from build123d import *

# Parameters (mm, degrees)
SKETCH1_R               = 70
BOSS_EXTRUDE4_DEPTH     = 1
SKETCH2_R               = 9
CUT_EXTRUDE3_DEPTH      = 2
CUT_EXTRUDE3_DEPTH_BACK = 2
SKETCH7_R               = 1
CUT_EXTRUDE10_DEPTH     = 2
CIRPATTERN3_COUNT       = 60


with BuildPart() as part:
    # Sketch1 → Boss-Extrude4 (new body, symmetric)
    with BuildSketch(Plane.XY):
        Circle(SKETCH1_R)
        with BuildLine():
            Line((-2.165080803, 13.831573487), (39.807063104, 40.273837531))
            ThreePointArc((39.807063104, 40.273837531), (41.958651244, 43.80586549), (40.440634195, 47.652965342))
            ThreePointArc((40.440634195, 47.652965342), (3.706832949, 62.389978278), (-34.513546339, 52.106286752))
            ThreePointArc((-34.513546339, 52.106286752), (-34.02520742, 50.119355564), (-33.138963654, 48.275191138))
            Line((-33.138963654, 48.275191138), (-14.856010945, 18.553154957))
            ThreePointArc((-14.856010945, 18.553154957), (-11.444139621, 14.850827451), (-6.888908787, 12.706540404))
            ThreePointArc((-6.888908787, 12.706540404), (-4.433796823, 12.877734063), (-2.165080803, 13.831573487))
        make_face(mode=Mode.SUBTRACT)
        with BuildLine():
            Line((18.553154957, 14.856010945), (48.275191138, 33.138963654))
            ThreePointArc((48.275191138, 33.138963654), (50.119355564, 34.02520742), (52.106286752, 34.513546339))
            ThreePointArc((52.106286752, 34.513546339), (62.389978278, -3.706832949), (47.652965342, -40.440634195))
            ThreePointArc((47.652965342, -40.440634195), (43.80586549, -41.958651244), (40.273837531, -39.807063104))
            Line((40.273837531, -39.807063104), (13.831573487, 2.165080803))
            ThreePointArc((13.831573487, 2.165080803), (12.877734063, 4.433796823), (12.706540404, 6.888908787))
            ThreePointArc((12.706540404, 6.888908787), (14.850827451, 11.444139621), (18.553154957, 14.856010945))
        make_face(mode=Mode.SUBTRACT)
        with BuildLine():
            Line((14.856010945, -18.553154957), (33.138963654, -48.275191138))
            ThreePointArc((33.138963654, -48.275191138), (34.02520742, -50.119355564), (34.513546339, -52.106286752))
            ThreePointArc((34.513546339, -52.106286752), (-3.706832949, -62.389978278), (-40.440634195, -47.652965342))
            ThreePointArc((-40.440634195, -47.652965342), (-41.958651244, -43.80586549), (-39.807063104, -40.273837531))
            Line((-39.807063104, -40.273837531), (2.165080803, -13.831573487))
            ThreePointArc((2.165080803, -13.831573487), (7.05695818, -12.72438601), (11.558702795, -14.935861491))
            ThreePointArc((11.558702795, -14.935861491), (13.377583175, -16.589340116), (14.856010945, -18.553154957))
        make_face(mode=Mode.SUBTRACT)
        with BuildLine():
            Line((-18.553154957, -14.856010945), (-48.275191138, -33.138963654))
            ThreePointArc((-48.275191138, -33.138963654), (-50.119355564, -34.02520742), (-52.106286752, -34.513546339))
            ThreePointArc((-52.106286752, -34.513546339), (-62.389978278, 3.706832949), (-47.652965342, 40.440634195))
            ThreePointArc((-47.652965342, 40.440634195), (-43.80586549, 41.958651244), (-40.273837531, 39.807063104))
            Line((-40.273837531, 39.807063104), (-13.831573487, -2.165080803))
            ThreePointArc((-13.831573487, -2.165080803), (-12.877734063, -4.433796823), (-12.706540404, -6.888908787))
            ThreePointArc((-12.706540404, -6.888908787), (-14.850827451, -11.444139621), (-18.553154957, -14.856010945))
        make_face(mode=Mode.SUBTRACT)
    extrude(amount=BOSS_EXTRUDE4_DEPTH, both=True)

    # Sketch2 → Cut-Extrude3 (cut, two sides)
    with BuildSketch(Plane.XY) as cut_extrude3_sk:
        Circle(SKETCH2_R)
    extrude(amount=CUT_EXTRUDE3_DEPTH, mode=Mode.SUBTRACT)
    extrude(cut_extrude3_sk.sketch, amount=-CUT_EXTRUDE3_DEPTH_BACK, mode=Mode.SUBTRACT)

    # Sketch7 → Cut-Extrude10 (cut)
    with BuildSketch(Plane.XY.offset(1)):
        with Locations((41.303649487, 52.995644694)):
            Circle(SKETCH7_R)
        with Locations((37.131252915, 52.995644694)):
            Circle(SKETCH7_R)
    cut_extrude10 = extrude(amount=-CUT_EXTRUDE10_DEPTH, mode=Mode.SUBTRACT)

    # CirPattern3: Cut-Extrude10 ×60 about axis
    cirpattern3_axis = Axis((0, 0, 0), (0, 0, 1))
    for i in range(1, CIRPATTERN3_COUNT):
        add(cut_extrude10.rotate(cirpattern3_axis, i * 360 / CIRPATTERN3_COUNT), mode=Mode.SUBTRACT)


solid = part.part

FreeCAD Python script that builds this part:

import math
import FreeCAD as App
import Part
import Sketcher
from FreeCAD import Vector

doc = App.newDocument("Part")
body = doc.addObject("PartDesign::Body", "Body")

# Sketch on XY plane
sketch1 = body.newObject("Sketcher::SketchObject", "Sketch")
sketch1.AttachmentSupport = (doc.getObject("XY_Plane"), [""])
sketch1.MapMode = "FlatFace"
sketch1.addGeometry(Part.Circle(Vector(0, 0, 0), Vector(0, 0, 1), 70), False)
sketch1.addGeometry(Part.ArcOfCircle(Part.Circle(Vector(3.684075, -25.425361, 0), Vector(0, 0, 1), 13.116378), math.radians(31.596971), math.radians(53.103884)), False)
sketch1.addGeometry(Part.LineSegment(Vector(14.856011, -18.553155, 0), Vector(33.138964, -48.275191, 0)), False)
sketch1.addGeometry(Part.ArcOfCircle(Part.Circle(Vector(24.704121, -53.463726, 0), Vector(0, 0, 1), 9.902902), math.radians(7.87862), math.radians(31.596971)), False)
sketch1.addGeometry(Part.ArcOfCircle(Part.Circle(Vector(0, 0, 0), Vector(0, 0, 1), 62.5), math.radians(-130.319563), math.radians(-56.480776)), False)
sketch1.addGeometry(Part.ArcOfCircle(Part.Circle(Vector(-37.331619, -44.203142, 0), Vector(0, 0, 1), 4.644056), math.radians(122.210745), math.radians(227.974507)), False)
sketch1.addGeometry(Part.LineSegment(Vector(-39.807063, -40.273838, 0), Vector(2.165081, -13.831573, 0)), False)
sketch1.addGeometry(Part.ArcOfCircle(Part.Circle(Vector(6.177991, -20.201317, 0), Vector(0, 0, 1), 7.528418), math.radians(44.379736), math.radians(122.210745)), False)
sketch1.addGeometry(Part.ArcOfCircle(Part.Circle(Vector(25.425361, 3.684075, 0), Vector(0, 0, 1), 13.116378), math.radians(121.596971), math.radians(165.857268)), False)
sketch1.addGeometry(Part.LineSegment(Vector(18.553155, 14.856011, 0), Vector(48.275191, 33.138964, 0)), False)
sketch1.addGeometry(Part.ArcOfCircle(Part.Circle(Vector(53.463726, 24.704121, 0), Vector(0, 0, 1), 9.902902), math.radians(97.87862), math.radians(121.596971)), False)
sketch1.addGeometry(Part.ArcOfCircle(Part.Circle(Vector(0, 0, 0), Vector(0, 0, 1), 62.5), math.radians(-40.319563), math.radians(33.519224)), False)
sketch1.addGeometry(Part.ArcOfCircle(Part.Circle(Vector(44.203142, -37.331619, 0), Vector(0, 0, 1), 4.644056), math.radians(-147.789255), math.radians(-42.025493)), False)
sketch1.addGeometry(Part.LineSegment(Vector(40.273838, -39.807063, 0), Vector(13.831573, 2.165081, 0)), False)
sketch1.addGeometry(Part.ArcOfCircle(Part.Circle(Vector(20.201317, 6.177991, 0), Vector(0, 0, 1), 7.528418), math.radians(174.581416), math.radians(212.210745)), False)
sketch1.addGeometry(Part.ArcOfCircle(Part.Circle(Vector(-25.425361, -3.684075, 0), Vector(0, 0, 1), 13.116378), math.radians(-58.403029), math.radians(-14.142732)), False)
sketch1.addGeometry(Part.LineSegment(Vector(-18.553155, -14.856011, 0), Vector(-48.275191, -33.138964, 0)), False)
sketch1.addGeometry(Part.ArcOfCircle(Part.Circle(Vector(-53.463726, -24.704121, 0), Vector(0, 0, 1), 9.902902), math.radians(-82.12138), math.radians(-58.403029)), False)
sketch1.addGeometry(Part.ArcOfCircle(Part.Circle(Vector(0, 0, 0), Vector(0, 0, 1), 62.5), math.radians(139.680437), math.radians(213.519224)), False)
sketch1.addGeometry(Part.ArcOfCircle(Part.Circle(Vector(-44.203142, 37.331619, 0), Vector(0, 0, 1), 4.644056), math.radians(32.210745), math.radians(137.974507)), False)
sketch1.addGeometry(Part.LineSegment(Vector(-40.273838, 39.807063, 0), Vector(-13.831573, -2.165081, 0)), False)
sketch1.addGeometry(Part.ArcOfCircle(Part.Circle(Vector(-20.201317, -6.177991, 0), Vector(0, 0, 1), 7.528418), math.radians(-5.418584), math.radians(32.210745)), False)
sketch1.addGeometry(Part.LineSegment(Vector(39.807063, 40.273838, 0), Vector(-2.165081, 13.831573, 0)), False)
sketch1.addGeometry(Part.ArcOfCircle(Part.Circle(Vector(-6.177991, 20.201317, 0), Vector(0, 0, 1), 7.528418), math.radians(-95.418584), math.radians(-57.789255)), False)
sketch1.addGeometry(Part.ArcOfCircle(Part.Circle(Vector(-3.684075, 25.425361, 0), Vector(0, 0, 1), 13.116378), math.radians(-148.403029), math.radians(-104.142732)), False)
sketch1.addGeometry(Part.LineSegment(Vector(-14.856011, 18.553155, 0), Vector(-33.138964, 48.275191, 0)), False)
sketch1.addGeometry(Part.ArcOfCircle(Part.Circle(Vector(-24.704121, 53.463726, 0), Vector(0, 0, 1), 9.902902), math.radians(-172.12138), math.radians(-148.403029)), False)
sketch1.addGeometry(Part.ArcOfCircle(Part.Circle(Vector(0, 0, 0), Vector(0, 0, 1), 62.5), math.radians(49.680437), math.radians(123.519224)), False)
sketch1.addGeometry(Part.ArcOfCircle(Part.Circle(Vector(37.331619, 44.203142, 0), Vector(0, 0, 1), 4.644056), math.radians(-57.789255), math.radians(47.974507)), False)
sketch1.addConstraint(Sketcher.Constraint("Tangent", 1, 1, 2, 1))
sketch1.addConstraint(Sketcher.Constraint("Tangent", 2, 2, 3, 2))
sketch1.addConstraint(Sketcher.Constraint("Coincident", 3, 1, 4, 2))
sketch1.addConstraint(Sketcher.Constraint("Coincident", 4, 1, 5, 2))
sketch1.addConstraint(Sketcher.Constraint("Tangent", 5, 1, 6, 1))
sketch1.addConstraint(Sketcher.Constraint("Tangent", 6, 2, 7, 2))
sketch1.addConstraint(Sketcher.Constraint("Coincident", 7, 1, 1, 2))
sketch1.addConstraint(Sketcher.Constraint("Tangent", 8, 1, 9, 1))
sketch1.addConstraint(Sketcher.Constraint("Tangent", 9, 2, 10, 2))
sketch1.addConstraint(Sketcher.Constraint("Coincident", 10, 1, 11, 2))
sketch1.addConstraint(Sketcher.Constraint("Coincident", 11, 1, 12, 2))
sketch1.addConstraint(Sketcher.Constraint("Tangent", 12, 1, 13, 1))
sketch1.addConstraint(Sketcher.Constraint("Tangent", 13, 2, 14, 2))
sketch1.addConstraint(Sketcher.Constraint("Coincident", 14, 1, 8, 2))
sketch1.addConstraint(Sketcher.Constraint("Tangent", 15, 1, 16, 1))
sketch1.addConstraint(Sketcher.Constraint("Tangent", 16, 2, 17, 2))
sketch1.addConstraint(Sketcher.Constraint("Coincident", 17, 1, 18, 2))
sketch1.addConstraint(Sketcher.Constraint("Coincident", 18, 1, 19, 2))
sketch1.addConstraint(Sketcher.Constraint("Tangent", 19, 1, 20, 1))
sketch1.addConstraint(Sketcher.Constraint("Tangent", 20, 2, 21, 2))
sketch1.addConstraint(Sketcher.Constraint("Coincident", 21, 1, 15, 2))
sketch1.addConstraint(Sketcher.Constraint("Tangent", 22, 2, 23, 2))
sketch1.addConstraint(Sketcher.Constraint("Coincident", 23, 1, 24, 2))
sketch1.addConstraint(Sketcher.Constraint("Tangent", 24, 1, 25, 1))
sketch1.addConstraint(Sketcher.Constraint("Tangent", 25, 2, 26, 2))
sketch1.addConstraint(Sketcher.Constraint("Coincident", 26, 1, 27, 2))
sketch1.addConstraint(Sketcher.Constraint("Coincident", 27, 1, 28, 2))
sketch1.addConstraint(Sketcher.Constraint("Tangent", 28, 1, 22, 1))
sketch1.addConstraint(Sketcher.Constraint("Coincident", 0, 3, -1, 1))
sketch1.addConstraint(Sketcher.Constraint("Coincident", 4, 3, -1, 1))
sketch1.addConstraint(Sketcher.Constraint("Coincident", 11, 3, -1, 1))
sketch1.addConstraint(Sketcher.Constraint("Coincident", 18, 3, -1, 1))
sketch1.addConstraint(Sketcher.Constraint("Coincident", 27, 3, -1, 1))
sketch1.addConstraint(Sketcher.Constraint("Equal", 1, 8))
sketch1.addConstraint(Sketcher.Constraint("Equal", 3, 10))
sketch1.addConstraint(Sketcher.Constraint("Equal", 4, 11))
sketch1.addConstraint(Sketcher.Constraint("Equal", 5, 12))
sketch1.addConstraint(Sketcher.Constraint("Equal", 7, 14))
sketch1.addConstraint(Sketcher.Constraint("Equal", 8, 15))
sketch1.addConstraint(Sketcher.Constraint("Equal", 10, 17))
sketch1.addConstraint(Sketcher.Constraint("Equal", 11, 18))
sketch1.addConstraint(Sketcher.Constraint("Equal", 12, 19))
sketch1.addConstraint(Sketcher.Constraint("Equal", 14, 21))
sketch1.addConstraint(Sketcher.Constraint("Equal", 21, 23))
sketch1.addConstraint(Sketcher.Constraint("Equal", 15, 24))
sketch1.addConstraint(Sketcher.Constraint("Equal", 17, 26))
sketch1.addConstraint(Sketcher.Constraint("Equal", 18, 27))
sketch1.addConstraint(Sketcher.Constraint("Equal", 19, 28))
sketch1.addConstraint(Sketcher.Constraint("Symmetric", 8, 3, 15, 3, -1, 1))
sketch1.addConstraint(Sketcher.Constraint("Symmetric", 10, 3, 17, 3, -1, 1))
sketch1.addConstraint(Sketcher.Constraint("Symmetric", 12, 3, 19, 3, -1, 1))
sketch1.addConstraint(Sketcher.Constraint("Symmetric", 14, 3, 21, 3, -1, 1))
sketch1.addConstraint(Sketcher.Constraint("Symmetric", 7, 3, 23, 3, -1, 1))
sketch1.addConstraint(Sketcher.Constraint("Symmetric", 1, 3, 24, 3, -1, 1))
sketch1.addConstraint(Sketcher.Constraint("Symmetric", 3, 3, 26, 3, -1, 1))
sketch1.addConstraint(Sketcher.Constraint("Symmetric", 5, 3, 28, 3, -1, 1))
sketch1.addConstraint(Sketcher.Constraint("Perpendicular", 2, 9))
sketch1.addConstraint(Sketcher.Constraint("Perpendicular", 6, 13))
sketch1.addConstraint(Sketcher.Constraint("Equal", 2, 9))
sketch1.addConstraint(Sketcher.Constraint("Equal", 6, 13))
sketch1.addConstraint(Sketcher.Constraint("Diameter", 0, 140.0))
sketch1.addConstraint(Sketcher.Constraint("Radius", 4, 62.5))
sketch1.addConstraint(Sketcher.Constraint("Radius", 3, 9.902902))
sketch1.addConstraint(Sketcher.Constraint("Radius", 7, 7.528418))
sketch1.addConstraint(Sketcher.Constraint("Radius", 1, 13.116378))
sketch1.addConstraint(Sketcher.Constraint("Radius", 5, 4.644056))
sketch1.addConstraint(Sketcher.Constraint("DistanceX", 2, 2, 11, 1, 14.514002))
sketch1.addConstraint(Sketcher.Constraint("DistanceY", 4, 1, 16, 2, 14.514002))
sketch1.addConstraint(Sketcher.Constraint("DistanceY", 3, 3, 8, 3, 57.147802))
sketch1.addConstraint(Sketcher.Constraint("DistanceY", 12, 3, 7, 3, 17.130302))
sketch1.addConstraint(Sketcher.Constraint("DistanceX", 17, 3, 1, 3, 57.147802))
sketch1.addConstraint(Sketcher.Constraint("DistanceX", 14, 3, 28, 3, 17.130302))
sketch1.addConstraint(Sketcher.Constraint("DistanceX", 5, 1, 15, 3, 14.381702))
sketch1.addConstraint(Sketcher.Constraint("DistanceY", 1, 3, 7, 1, 10.4895))
sketch1.addConstraint(Sketcher.Constraint("DistanceY", 24, 3, 19, 1, 14.381702))
sketch1.addConstraint(Sketcher.Constraint("Distance", 2, 34.895068))
sketch1.addConstraint(Sketcher.Constraint("DistanceY", 1, 3, -1, 1, 25.425361))
sketch1.addConstraint(Sketcher.Constraint("DistanceX", -1, 1, 3, 3, 24.704121))
pad1 = body.newObject("PartDesign::Pad", "Pad")
pad1.Profile = sketch1
pad1.Length = 2
pad1.Midplane = True

# Sketch on XY plane
sketch2 = body.newObject("Sketcher::SketchObject", "Sketch001")
sketch2.AttachmentSupport = (doc.getObject("XY_Plane"), [""])
sketch2.MapMode = "FlatFace"
sketch2.addGeometry(Part.Circle(Vector(0, 0, 0), Vector(0, 0, 1), 9), False)
sketch2.addConstraint(Sketcher.Constraint("Coincident", 0, 3, -1, 1))
sketch2.addConstraint(Sketcher.Constraint("Diameter", 0, 18.0))
pocket1 = body.newObject("PartDesign::Pocket", "Pocket")
pocket1.Profile = sketch2
pocket1.Type = "ThroughAll"
pocket1.Midplane = True

# Sketch on XY plane
sketch3 = body.newObject("Sketcher::SketchObject", "Sketch002")
sketch3.AttachmentSupport = (doc.getObject("XY_Plane"), [""])
sketch3.MapMode = "FlatFace"
sketch3.AttachmentOffset = App.Placement(Vector(0, 0, 1), App.Rotation())
sketch3.addGeometry(Part.Circle(Vector(41.303649, 52.995645, 0), Vector(0, 0, 1), 1), False)
sketch3.addGeometry(Part.Circle(Vector(37.131253, 52.995645, 0), Vector(0, 0, 1), 1), False)
sketch3.addConstraint(Sketcher.Constraint("Equal", 0, 1))
sketch3.addConstraint(Sketcher.Constraint("Horizontal", 0, 3, 1, 3))
sketch3.addConstraint(Sketcher.Constraint("Diameter", 0, 2.0))
sketch3.addConstraint(Sketcher.Constraint("DistanceX", -1, 1, 0, 3, 41.303649))
sketch3.addConstraint(Sketcher.Constraint("DistanceY", -1, 1, 0, 3, 52.995645))
sketch3.addConstraint(Sketcher.Constraint("DistanceX", -1, 1, 1, 3, 37.131253))
pocket2 = body.newObject("PartDesign::Pocket", "Pocket001")
pocket2.Profile = sketch3
pocket2.Length = 2
doc.recompute()

polarpattern = body.newObject("PartDesign::PolarPattern", "PolarPattern")
polarpattern.Originals = [pocket2]
polarpattern.Axis = (doc.getObject("Z_Axis"), [""])
polarpattern.Angle = 360
polarpattern.Occurrences = 60
body.Tip = polarpattern

doc.recompute()
